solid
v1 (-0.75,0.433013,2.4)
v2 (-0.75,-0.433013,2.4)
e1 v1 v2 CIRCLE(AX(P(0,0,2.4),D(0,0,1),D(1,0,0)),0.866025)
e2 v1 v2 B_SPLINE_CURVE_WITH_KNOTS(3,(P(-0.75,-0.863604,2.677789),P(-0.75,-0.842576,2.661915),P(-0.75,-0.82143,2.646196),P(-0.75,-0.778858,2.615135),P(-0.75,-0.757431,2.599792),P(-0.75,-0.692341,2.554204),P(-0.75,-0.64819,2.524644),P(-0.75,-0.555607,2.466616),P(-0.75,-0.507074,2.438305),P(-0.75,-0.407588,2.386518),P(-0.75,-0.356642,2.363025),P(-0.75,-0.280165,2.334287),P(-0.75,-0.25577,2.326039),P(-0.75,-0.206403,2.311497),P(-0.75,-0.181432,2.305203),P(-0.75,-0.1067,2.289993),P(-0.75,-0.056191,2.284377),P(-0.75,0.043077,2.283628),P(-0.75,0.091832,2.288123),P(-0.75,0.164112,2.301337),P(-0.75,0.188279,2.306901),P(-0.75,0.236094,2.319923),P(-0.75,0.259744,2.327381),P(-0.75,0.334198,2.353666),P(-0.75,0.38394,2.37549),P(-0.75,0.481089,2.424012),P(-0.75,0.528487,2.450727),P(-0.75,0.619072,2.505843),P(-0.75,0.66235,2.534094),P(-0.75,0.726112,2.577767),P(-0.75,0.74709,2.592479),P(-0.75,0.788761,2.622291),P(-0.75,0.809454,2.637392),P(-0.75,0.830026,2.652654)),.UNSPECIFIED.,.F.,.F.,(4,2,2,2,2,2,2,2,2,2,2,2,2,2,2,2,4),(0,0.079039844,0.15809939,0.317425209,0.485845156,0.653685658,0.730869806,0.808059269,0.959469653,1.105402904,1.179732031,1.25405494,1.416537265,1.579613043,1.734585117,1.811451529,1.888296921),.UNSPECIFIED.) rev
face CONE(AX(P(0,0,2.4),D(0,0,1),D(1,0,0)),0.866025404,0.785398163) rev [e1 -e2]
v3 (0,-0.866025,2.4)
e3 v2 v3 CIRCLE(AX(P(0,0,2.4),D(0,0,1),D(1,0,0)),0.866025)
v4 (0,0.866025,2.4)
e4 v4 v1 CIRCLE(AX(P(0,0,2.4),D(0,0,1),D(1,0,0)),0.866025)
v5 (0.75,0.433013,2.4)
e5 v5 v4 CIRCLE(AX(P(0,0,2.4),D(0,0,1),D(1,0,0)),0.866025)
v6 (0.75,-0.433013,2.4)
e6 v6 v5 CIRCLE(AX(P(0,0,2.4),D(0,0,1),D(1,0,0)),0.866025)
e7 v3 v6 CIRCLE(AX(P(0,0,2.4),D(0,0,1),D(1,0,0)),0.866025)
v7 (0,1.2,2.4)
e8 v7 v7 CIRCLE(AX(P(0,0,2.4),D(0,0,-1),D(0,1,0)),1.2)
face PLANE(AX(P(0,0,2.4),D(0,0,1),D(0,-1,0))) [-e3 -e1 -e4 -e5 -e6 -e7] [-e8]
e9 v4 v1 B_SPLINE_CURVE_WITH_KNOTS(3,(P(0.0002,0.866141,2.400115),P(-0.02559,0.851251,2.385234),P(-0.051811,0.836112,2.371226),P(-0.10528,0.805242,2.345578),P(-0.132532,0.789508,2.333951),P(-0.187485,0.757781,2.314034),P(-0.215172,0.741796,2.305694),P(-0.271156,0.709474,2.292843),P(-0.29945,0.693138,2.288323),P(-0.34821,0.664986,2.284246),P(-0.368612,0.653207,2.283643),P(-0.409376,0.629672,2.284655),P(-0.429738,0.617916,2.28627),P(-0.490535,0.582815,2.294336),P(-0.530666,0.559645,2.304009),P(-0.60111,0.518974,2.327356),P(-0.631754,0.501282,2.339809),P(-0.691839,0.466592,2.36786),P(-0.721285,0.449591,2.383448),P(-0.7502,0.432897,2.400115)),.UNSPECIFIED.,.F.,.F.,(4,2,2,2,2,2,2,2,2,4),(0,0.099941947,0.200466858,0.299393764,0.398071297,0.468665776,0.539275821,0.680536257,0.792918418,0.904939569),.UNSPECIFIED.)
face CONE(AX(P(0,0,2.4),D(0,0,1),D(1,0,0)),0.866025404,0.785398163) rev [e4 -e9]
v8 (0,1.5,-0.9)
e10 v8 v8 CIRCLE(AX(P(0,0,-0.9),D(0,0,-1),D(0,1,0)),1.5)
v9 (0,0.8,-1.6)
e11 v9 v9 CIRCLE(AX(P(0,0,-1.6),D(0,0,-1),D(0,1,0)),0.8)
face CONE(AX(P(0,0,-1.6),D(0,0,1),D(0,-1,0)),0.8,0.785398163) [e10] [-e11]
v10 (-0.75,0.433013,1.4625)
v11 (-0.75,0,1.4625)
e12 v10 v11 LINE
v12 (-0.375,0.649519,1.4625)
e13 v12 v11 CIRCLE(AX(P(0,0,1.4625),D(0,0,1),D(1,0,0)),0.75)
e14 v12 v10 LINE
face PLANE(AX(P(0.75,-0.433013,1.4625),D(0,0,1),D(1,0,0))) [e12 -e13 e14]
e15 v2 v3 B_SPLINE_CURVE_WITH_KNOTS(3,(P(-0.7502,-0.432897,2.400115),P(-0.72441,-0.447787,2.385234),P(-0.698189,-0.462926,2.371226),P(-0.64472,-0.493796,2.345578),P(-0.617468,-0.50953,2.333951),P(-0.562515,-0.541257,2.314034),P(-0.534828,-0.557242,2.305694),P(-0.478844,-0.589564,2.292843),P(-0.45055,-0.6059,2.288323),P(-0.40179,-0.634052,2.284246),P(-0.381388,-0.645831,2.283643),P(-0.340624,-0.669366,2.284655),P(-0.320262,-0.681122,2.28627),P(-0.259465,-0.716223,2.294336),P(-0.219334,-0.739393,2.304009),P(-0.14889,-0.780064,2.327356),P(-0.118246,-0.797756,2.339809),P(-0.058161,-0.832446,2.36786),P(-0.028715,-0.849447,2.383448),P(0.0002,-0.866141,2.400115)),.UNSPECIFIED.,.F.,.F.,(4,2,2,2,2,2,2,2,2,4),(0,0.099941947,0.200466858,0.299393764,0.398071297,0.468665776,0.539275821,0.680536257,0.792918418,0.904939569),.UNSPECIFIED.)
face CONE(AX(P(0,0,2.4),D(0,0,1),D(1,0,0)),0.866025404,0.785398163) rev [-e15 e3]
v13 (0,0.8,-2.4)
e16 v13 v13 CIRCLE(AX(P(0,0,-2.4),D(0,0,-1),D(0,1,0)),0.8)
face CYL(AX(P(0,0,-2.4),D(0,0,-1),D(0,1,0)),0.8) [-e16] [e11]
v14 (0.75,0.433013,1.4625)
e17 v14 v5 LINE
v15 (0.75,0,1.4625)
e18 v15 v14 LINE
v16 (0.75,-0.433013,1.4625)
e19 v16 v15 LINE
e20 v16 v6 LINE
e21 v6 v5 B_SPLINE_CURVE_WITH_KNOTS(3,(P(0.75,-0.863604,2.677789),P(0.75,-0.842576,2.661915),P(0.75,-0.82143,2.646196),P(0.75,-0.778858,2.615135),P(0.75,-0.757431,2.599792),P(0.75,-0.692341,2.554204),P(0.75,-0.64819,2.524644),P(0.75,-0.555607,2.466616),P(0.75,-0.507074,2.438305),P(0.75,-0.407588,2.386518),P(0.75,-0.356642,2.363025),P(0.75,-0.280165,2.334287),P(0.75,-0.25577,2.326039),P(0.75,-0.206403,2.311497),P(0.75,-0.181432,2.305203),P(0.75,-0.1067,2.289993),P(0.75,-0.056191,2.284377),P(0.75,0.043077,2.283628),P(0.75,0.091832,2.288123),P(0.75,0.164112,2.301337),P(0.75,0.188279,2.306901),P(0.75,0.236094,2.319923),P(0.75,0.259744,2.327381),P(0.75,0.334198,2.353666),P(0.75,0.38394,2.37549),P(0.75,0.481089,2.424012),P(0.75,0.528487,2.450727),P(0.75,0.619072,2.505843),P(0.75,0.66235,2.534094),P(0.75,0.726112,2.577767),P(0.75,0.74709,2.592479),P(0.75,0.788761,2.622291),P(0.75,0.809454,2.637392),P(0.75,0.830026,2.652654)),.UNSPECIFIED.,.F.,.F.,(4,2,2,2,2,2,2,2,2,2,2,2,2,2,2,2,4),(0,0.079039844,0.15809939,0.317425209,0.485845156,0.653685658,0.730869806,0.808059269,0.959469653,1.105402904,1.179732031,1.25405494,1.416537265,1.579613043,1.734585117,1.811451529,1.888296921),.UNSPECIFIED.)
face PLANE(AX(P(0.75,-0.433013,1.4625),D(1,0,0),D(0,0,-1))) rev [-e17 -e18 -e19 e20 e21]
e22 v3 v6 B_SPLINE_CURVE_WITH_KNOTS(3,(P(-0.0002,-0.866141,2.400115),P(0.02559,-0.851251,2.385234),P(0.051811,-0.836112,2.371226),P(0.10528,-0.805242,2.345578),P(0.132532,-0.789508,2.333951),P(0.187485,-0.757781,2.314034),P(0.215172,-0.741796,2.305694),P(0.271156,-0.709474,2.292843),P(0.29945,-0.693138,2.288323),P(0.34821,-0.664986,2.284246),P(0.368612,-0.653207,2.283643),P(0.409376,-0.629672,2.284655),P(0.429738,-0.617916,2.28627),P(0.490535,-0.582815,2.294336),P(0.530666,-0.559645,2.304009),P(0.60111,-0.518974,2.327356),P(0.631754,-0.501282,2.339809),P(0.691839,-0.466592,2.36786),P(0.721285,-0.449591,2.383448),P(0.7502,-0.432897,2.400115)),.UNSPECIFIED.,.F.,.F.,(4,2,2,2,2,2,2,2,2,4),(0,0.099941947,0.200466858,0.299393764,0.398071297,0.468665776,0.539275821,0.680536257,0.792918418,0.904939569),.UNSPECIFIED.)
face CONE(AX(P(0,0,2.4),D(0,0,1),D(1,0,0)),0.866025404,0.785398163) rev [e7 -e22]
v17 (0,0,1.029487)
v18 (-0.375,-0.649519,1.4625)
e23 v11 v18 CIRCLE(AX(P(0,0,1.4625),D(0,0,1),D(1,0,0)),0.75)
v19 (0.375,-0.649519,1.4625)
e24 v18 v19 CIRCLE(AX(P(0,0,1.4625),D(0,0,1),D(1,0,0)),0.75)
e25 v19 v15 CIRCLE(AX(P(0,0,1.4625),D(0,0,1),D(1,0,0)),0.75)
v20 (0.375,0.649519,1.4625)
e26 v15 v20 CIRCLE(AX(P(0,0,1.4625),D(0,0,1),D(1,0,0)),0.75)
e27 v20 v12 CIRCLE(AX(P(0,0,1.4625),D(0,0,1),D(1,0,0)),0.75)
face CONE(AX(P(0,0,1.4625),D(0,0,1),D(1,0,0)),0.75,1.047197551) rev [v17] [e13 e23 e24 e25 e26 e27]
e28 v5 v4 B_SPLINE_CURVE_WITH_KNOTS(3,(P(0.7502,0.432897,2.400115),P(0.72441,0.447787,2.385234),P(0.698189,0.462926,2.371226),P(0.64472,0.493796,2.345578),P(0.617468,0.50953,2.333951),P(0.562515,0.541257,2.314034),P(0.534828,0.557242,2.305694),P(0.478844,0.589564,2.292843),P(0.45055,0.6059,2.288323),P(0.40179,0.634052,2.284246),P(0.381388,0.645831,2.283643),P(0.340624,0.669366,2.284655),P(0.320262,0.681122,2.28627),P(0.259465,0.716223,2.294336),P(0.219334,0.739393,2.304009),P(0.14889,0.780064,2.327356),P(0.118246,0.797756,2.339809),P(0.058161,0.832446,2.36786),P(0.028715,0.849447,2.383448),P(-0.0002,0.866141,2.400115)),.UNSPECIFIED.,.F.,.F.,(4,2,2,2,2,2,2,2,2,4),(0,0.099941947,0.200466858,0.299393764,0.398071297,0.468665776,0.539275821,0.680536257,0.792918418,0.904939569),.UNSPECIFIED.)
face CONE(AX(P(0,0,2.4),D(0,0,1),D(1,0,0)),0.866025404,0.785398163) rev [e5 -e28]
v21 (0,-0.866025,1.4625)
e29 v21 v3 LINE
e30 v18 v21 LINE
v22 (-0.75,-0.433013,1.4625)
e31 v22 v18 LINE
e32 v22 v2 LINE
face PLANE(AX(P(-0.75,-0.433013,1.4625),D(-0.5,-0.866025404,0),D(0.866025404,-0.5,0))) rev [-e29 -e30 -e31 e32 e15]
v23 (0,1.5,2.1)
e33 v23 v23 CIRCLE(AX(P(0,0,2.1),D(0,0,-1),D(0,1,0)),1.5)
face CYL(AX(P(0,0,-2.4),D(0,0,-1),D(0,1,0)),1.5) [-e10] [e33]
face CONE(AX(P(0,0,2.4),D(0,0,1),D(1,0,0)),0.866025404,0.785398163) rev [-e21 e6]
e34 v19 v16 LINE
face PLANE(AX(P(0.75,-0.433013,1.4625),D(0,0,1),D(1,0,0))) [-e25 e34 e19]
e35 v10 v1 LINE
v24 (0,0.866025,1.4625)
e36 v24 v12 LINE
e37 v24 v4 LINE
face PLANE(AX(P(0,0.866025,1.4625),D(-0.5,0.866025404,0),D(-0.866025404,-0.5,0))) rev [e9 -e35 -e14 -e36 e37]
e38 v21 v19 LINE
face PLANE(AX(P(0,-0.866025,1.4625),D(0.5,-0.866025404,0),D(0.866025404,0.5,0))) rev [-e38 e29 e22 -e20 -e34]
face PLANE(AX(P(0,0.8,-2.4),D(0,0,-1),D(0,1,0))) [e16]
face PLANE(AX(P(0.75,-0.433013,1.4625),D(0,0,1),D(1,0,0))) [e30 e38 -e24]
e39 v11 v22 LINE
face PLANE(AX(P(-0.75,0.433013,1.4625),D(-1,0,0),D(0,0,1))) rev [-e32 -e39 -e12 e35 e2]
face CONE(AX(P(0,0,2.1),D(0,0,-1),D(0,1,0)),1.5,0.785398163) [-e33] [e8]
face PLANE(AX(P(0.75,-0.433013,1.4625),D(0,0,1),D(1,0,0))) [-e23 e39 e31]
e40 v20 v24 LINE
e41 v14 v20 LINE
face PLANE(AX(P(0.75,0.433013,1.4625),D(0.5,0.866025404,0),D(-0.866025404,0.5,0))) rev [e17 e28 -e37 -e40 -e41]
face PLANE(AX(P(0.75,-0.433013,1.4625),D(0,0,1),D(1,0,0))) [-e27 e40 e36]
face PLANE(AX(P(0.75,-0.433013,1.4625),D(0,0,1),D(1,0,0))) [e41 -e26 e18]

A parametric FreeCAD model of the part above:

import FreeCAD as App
import Part
import Sketcher
Q = App.Units.Quantity

doc = App.newDocument("Part")
body = doc.addObject("PartDesign::Body", "Body")

sketch1 = doc.addObject("Sketcher::SketchObject", "Sketch")
body.addObject(sketch1)
sketch1.AttachmentSupport = (doc.YZ_Plane, [""])
sketch1.MapMode = "FlatFace"
sketch1.addGeometry([
    Part.LineSegment(App.Vector(1.2, 2.4, 0), App.Vector(0, 2.4, 0)),
    Part.LineSegment(App.Vector(0, 2.4, 0), App.Vector(0, -2.4, 0)),
    Part.LineSegment(App.Vector(0, -2.4, 0), App.Vector(0.8, -2.4, 0)),
    Part.LineSegment(App.Vector(0.8, -2.4, 0), App.Vector(0.8, -1.6, 0)),
    Part.LineSegment(App.Vector(0.8, -1.6, 0), App.Vector(1.5, -0.9, 0)),
    Part.LineSegment(App.Vector(1.5, -0.9, 0), App.Vector(1.5, 2.1, 0)),
    Part.LineSegment(App.Vector(1.5, 2.1, 0), App.Vector(1.2, 2.4, 0)),
], False)
sketch1.addConstraint([
    Sketcher.Constraint("Coincident", 0, 2, 1, 1),
    Sketcher.Constraint("Coincident", 1, 2, 2, 1),
    Sketcher.Constraint("Coincident", 2, 2, 3, 1),
    Sketcher.Constraint("Coincident", 3, 2, 4, 1),
    Sketcher.Constraint("Coincident", 4, 2, 5, 1),
    Sketcher.Constraint("Coincident", 5, 2, 6, 1),
    Sketcher.Constraint("Coincident", 6, 2, 0, 1),
    Sketcher.Constraint("Horizontal", 0),
    Sketcher.Constraint("Vertical", 1),
    Sketcher.Constraint("Horizontal", 2),
    Sketcher.Constraint("Vertical", 3),
    Sketcher.Constraint("Vertical", 5),
    Sketcher.Constraint("Symmetric", 0, 2, 1, 2, -1, 1),
    Sketcher.Constraint("Perpendicular", 4, 6),
    Sketcher.Constraint("Equal", 2, 3),
    Sketcher.Constraint("DistanceY", 5, 1, 5, 2, 3.0),
    Sketcher.Constraint("Angle", 4, Q("45 deg")),
    Sketcher.Constraint("DistanceX", 0, 2, 0, 1, 1.2),
    Sketcher.Constraint("DistanceX", 2, 1, 2, 2, 0.8),
    Sketcher.Constraint("DistanceY", 1, 2, 1, 1, 4.8),
])
revolution = doc.addObject("PartDesign::Revolution", "Revolution")
body.addObject(revolution)
revolution.Profile = sketch1
revolution.ReferenceAxis = (sketch1, ["V_Axis"])
revolution.Angle = 360

sketch2 = doc.addObject("Sketcher::SketchObject", "Sketch001")
body.addObject(sketch2)
sketch2.AttachmentSupport = (doc.XY_Plane, [""])
sketch2.MapMode = "FlatFace"
sketch2.AttachmentOffset = App.Placement(App.Vector(0, 0, 2.4), App.Rotation())
sketch2.addGeometry([
    Part.LineSegment(App.Vector(0.75, -0.433013, 0), App.Vector(0.75, 0.433013, 0)),
    Part.LineSegment(App.Vector(0.75, 0.433013, 0), App.Vector(0, 0.866025, 0)),
    Part.LineSegment(App.Vector(0, 0.866025, 0), App.Vector(-0.75, 0.433013, 0)),
    Part.LineSegment(App.Vector(-0.75, 0.433013, 0), App.Vector(-0.75, -0.433013, 0)),
    Part.LineSegment(App.Vector(-0.75, -0.433013, 0), App.Vector(0, -0.866025, 0)),
    Part.LineSegment(App.Vector(0, -0.866025, 0), App.Vector(0.75, -0.433013, 0)),
], False)
sketch2.addConstraint([
    Sketcher.Constraint("Coincident", 0, 2, 1, 1),
    Sketcher.Constraint("Coincident", 1, 2, 2, 1),
    Sketcher.Constraint("Coincident", 2, 2, 3, 1),
    Sketcher.Constraint("Coincident", 3, 2, 4, 1),
    Sketcher.Constraint("Coincident", 4, 2, 5, 1),
    Sketcher.Constraint("Coincident", 5, 2, 0, 1),
    Sketcher.Constraint("Vertical", 0),
    Sketcher.Constraint("Vertical", 3),
    Sketcher.Constraint("Symmetric", 0, 2, 3, 2, -1, 1),
    Sketcher.Constraint("Symmetric", 1, 2, 4, 2, -1, 1),
    Sketcher.Constraint("PointOnObject", 1, 2, -2),
    Sketcher.Constraint("Parallel", 2, 5),
    Sketcher.Constraint("Horizontal", 0, 2, 2, 2),
    Sketcher.Constraint("Angle", 1, Q("150 deg")),
    Sketcher.Constraint("DistanceX", 2, 2, 0, 2, 1.5),
    Sketcher.Constraint("DistanceY", 0, 1, 0, 2, 0.866025),
])
pocket1 = doc.addObject("PartDesign::Pocket", "Pocket")
body.addObject(pocket1)
pocket1.Profile = sketch2
pocket1.Length = 0.9375

sketch3 = doc.addObject("Sketcher::SketchObject", "Sketch002")
body.addObject(sketch3)
sketch3.AttachmentSupport = (doc.YZ_Plane, [""])
sketch3.MapMode = "FlatFace"
sketch3.addGeometry([
    Part.LineSegment(App.Vector(0, 2.4, 0), App.Vector(-0.866025, 2.4, 0)),
    Part.LineSegment(App.Vector(-0.866025, 2.4, 0), App.Vector(0, 1.533975, 0)),
    Part.LineSegment(App.Vector(0, 1.533975, 0), App.Vector(0, 2.4, 0)),
], False)
sketch3.addConstraint([
    Sketcher.Constraint("Coincident", 0, 2, 1, 1),
    Sketcher.Constraint("Coincident", 1, 2, 2, 1),
    Sketcher.Constraint("Coincident", 2, 2, 0, 1),
    Sketcher.Constraint("Horizontal", 0),
    Sketcher.Constraint("Vertical", 2),
    Sketcher.Constraint("PointOnObject", 1, 2, -2),
    Sketcher.Constraint("Equal", 0, 2),
    Sketcher.Constraint("DistanceY", -1, 1, 0, 2, 2.4),
    Sketcher.Constraint("DistanceX", 0, 2, 0, 1, 0.866025),
])
groove = doc.addObject("PartDesign::Groove", "Groove")
body.addObject(groove)
groove.Profile = sketch3
groove.ReferenceAxis = (sketch3, ["V_Axis"])
groove.Angle = 360

sketch4 = doc.addObject("Sketcher::SketchObject", "Sketch003")
body.addObject(sketch4)
sketch4.AttachmentSupport = (doc.YZ_Plane, [""])
sketch4.MapMode = "FlatFace"
sketch4.addGeometry([
    Part.LineSegment(App.Vector(0, 1.4625, 0), App.Vector(-0.75, 1.4625, 0)),
    Part.LineSegment(App.Vector(-0.75, 1.4625, 0), App.Vector(0, 1.029487, 0)),
    Part.LineSegment(App.Vector(0, 1.029487, 0), App.Vector(0, 1.4625, 0)),
], False)
sketch4.addConstraint([
    Sketcher.Constraint("Coincident", 0, 2, 1, 1),
    Sketcher.Constraint("Coincident", 1, 2, 2, 1),
    Sketcher.Constraint("Coincident", 2, 2, 0, 1),
    Sketcher.Constraint("Horizontal", 0),
    Sketcher.Constraint("Vertical", 2),
    Sketcher.Constraint("PointOnObject", 1, 2, -2),
    Sketcher.Constraint("Angle", 1, Q("-30 deg")),
    Sketcher.Constraint("DistanceX", 0, 2, 0, 1, 0.75),
    Sketcher.Constraint("DistanceY", -1, 1, 0, 2, 1.4625),
])
groove2 = doc.addObject("PartDesign::Groove", "Groove001")
body.addObject(groove2)
groove2.Profile = sketch4
groove2.ReferenceAxis = (sketch4, ["V_Axis"])
groove2.Angle = 360

doc.recompute()
